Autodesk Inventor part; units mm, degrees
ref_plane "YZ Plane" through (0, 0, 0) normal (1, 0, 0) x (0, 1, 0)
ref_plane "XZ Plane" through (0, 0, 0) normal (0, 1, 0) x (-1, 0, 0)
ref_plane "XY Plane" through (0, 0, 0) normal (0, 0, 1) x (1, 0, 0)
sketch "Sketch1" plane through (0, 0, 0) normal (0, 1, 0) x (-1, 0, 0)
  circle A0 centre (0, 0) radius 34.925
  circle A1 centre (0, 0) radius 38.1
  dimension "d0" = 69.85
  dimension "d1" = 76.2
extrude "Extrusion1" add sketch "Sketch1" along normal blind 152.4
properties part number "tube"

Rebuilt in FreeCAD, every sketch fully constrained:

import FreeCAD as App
import Part
import Sketcher

V = App.Vector
Q = App.Units.Quantity

doc = App.newDocument("Part")
body = doc.addObject("PartDesign::Body", "Body")

sketch1 = doc.addObject("Sketcher::SketchObject", "Sketch")
body.addObject(sketch1)
sketch1.AttachmentSupport = (doc.XZ_Plane, [""])
sketch1.MapMode = "FlatFace"
sketch1.addGeometry([
    Part.Circle(V(0, 0, 0), V(0, 0, 1), 38),
    Part.Circle(V(0, 0, 0), V(0, 0, 1), 35),
], False)
sketch1.addConstraint([
    Sketcher.Constraint("Coincident", 0, 3, -1, 1),
    Sketcher.Constraint("Coincident", 1, 3, -1, 1),
    Sketcher.Constraint("Diameter", 0, Q("3 in")),
    Sketcher.Constraint("Diameter", 1, Q("2.75 in")),
])
pad1 = doc.addObject("PartDesign::Pad", "Pad")
body.addObject(pad1)
pad1.Profile = sketch1
pad1.Length = Q("6 in")
pad1.Reversed = True

doc.recompute()
